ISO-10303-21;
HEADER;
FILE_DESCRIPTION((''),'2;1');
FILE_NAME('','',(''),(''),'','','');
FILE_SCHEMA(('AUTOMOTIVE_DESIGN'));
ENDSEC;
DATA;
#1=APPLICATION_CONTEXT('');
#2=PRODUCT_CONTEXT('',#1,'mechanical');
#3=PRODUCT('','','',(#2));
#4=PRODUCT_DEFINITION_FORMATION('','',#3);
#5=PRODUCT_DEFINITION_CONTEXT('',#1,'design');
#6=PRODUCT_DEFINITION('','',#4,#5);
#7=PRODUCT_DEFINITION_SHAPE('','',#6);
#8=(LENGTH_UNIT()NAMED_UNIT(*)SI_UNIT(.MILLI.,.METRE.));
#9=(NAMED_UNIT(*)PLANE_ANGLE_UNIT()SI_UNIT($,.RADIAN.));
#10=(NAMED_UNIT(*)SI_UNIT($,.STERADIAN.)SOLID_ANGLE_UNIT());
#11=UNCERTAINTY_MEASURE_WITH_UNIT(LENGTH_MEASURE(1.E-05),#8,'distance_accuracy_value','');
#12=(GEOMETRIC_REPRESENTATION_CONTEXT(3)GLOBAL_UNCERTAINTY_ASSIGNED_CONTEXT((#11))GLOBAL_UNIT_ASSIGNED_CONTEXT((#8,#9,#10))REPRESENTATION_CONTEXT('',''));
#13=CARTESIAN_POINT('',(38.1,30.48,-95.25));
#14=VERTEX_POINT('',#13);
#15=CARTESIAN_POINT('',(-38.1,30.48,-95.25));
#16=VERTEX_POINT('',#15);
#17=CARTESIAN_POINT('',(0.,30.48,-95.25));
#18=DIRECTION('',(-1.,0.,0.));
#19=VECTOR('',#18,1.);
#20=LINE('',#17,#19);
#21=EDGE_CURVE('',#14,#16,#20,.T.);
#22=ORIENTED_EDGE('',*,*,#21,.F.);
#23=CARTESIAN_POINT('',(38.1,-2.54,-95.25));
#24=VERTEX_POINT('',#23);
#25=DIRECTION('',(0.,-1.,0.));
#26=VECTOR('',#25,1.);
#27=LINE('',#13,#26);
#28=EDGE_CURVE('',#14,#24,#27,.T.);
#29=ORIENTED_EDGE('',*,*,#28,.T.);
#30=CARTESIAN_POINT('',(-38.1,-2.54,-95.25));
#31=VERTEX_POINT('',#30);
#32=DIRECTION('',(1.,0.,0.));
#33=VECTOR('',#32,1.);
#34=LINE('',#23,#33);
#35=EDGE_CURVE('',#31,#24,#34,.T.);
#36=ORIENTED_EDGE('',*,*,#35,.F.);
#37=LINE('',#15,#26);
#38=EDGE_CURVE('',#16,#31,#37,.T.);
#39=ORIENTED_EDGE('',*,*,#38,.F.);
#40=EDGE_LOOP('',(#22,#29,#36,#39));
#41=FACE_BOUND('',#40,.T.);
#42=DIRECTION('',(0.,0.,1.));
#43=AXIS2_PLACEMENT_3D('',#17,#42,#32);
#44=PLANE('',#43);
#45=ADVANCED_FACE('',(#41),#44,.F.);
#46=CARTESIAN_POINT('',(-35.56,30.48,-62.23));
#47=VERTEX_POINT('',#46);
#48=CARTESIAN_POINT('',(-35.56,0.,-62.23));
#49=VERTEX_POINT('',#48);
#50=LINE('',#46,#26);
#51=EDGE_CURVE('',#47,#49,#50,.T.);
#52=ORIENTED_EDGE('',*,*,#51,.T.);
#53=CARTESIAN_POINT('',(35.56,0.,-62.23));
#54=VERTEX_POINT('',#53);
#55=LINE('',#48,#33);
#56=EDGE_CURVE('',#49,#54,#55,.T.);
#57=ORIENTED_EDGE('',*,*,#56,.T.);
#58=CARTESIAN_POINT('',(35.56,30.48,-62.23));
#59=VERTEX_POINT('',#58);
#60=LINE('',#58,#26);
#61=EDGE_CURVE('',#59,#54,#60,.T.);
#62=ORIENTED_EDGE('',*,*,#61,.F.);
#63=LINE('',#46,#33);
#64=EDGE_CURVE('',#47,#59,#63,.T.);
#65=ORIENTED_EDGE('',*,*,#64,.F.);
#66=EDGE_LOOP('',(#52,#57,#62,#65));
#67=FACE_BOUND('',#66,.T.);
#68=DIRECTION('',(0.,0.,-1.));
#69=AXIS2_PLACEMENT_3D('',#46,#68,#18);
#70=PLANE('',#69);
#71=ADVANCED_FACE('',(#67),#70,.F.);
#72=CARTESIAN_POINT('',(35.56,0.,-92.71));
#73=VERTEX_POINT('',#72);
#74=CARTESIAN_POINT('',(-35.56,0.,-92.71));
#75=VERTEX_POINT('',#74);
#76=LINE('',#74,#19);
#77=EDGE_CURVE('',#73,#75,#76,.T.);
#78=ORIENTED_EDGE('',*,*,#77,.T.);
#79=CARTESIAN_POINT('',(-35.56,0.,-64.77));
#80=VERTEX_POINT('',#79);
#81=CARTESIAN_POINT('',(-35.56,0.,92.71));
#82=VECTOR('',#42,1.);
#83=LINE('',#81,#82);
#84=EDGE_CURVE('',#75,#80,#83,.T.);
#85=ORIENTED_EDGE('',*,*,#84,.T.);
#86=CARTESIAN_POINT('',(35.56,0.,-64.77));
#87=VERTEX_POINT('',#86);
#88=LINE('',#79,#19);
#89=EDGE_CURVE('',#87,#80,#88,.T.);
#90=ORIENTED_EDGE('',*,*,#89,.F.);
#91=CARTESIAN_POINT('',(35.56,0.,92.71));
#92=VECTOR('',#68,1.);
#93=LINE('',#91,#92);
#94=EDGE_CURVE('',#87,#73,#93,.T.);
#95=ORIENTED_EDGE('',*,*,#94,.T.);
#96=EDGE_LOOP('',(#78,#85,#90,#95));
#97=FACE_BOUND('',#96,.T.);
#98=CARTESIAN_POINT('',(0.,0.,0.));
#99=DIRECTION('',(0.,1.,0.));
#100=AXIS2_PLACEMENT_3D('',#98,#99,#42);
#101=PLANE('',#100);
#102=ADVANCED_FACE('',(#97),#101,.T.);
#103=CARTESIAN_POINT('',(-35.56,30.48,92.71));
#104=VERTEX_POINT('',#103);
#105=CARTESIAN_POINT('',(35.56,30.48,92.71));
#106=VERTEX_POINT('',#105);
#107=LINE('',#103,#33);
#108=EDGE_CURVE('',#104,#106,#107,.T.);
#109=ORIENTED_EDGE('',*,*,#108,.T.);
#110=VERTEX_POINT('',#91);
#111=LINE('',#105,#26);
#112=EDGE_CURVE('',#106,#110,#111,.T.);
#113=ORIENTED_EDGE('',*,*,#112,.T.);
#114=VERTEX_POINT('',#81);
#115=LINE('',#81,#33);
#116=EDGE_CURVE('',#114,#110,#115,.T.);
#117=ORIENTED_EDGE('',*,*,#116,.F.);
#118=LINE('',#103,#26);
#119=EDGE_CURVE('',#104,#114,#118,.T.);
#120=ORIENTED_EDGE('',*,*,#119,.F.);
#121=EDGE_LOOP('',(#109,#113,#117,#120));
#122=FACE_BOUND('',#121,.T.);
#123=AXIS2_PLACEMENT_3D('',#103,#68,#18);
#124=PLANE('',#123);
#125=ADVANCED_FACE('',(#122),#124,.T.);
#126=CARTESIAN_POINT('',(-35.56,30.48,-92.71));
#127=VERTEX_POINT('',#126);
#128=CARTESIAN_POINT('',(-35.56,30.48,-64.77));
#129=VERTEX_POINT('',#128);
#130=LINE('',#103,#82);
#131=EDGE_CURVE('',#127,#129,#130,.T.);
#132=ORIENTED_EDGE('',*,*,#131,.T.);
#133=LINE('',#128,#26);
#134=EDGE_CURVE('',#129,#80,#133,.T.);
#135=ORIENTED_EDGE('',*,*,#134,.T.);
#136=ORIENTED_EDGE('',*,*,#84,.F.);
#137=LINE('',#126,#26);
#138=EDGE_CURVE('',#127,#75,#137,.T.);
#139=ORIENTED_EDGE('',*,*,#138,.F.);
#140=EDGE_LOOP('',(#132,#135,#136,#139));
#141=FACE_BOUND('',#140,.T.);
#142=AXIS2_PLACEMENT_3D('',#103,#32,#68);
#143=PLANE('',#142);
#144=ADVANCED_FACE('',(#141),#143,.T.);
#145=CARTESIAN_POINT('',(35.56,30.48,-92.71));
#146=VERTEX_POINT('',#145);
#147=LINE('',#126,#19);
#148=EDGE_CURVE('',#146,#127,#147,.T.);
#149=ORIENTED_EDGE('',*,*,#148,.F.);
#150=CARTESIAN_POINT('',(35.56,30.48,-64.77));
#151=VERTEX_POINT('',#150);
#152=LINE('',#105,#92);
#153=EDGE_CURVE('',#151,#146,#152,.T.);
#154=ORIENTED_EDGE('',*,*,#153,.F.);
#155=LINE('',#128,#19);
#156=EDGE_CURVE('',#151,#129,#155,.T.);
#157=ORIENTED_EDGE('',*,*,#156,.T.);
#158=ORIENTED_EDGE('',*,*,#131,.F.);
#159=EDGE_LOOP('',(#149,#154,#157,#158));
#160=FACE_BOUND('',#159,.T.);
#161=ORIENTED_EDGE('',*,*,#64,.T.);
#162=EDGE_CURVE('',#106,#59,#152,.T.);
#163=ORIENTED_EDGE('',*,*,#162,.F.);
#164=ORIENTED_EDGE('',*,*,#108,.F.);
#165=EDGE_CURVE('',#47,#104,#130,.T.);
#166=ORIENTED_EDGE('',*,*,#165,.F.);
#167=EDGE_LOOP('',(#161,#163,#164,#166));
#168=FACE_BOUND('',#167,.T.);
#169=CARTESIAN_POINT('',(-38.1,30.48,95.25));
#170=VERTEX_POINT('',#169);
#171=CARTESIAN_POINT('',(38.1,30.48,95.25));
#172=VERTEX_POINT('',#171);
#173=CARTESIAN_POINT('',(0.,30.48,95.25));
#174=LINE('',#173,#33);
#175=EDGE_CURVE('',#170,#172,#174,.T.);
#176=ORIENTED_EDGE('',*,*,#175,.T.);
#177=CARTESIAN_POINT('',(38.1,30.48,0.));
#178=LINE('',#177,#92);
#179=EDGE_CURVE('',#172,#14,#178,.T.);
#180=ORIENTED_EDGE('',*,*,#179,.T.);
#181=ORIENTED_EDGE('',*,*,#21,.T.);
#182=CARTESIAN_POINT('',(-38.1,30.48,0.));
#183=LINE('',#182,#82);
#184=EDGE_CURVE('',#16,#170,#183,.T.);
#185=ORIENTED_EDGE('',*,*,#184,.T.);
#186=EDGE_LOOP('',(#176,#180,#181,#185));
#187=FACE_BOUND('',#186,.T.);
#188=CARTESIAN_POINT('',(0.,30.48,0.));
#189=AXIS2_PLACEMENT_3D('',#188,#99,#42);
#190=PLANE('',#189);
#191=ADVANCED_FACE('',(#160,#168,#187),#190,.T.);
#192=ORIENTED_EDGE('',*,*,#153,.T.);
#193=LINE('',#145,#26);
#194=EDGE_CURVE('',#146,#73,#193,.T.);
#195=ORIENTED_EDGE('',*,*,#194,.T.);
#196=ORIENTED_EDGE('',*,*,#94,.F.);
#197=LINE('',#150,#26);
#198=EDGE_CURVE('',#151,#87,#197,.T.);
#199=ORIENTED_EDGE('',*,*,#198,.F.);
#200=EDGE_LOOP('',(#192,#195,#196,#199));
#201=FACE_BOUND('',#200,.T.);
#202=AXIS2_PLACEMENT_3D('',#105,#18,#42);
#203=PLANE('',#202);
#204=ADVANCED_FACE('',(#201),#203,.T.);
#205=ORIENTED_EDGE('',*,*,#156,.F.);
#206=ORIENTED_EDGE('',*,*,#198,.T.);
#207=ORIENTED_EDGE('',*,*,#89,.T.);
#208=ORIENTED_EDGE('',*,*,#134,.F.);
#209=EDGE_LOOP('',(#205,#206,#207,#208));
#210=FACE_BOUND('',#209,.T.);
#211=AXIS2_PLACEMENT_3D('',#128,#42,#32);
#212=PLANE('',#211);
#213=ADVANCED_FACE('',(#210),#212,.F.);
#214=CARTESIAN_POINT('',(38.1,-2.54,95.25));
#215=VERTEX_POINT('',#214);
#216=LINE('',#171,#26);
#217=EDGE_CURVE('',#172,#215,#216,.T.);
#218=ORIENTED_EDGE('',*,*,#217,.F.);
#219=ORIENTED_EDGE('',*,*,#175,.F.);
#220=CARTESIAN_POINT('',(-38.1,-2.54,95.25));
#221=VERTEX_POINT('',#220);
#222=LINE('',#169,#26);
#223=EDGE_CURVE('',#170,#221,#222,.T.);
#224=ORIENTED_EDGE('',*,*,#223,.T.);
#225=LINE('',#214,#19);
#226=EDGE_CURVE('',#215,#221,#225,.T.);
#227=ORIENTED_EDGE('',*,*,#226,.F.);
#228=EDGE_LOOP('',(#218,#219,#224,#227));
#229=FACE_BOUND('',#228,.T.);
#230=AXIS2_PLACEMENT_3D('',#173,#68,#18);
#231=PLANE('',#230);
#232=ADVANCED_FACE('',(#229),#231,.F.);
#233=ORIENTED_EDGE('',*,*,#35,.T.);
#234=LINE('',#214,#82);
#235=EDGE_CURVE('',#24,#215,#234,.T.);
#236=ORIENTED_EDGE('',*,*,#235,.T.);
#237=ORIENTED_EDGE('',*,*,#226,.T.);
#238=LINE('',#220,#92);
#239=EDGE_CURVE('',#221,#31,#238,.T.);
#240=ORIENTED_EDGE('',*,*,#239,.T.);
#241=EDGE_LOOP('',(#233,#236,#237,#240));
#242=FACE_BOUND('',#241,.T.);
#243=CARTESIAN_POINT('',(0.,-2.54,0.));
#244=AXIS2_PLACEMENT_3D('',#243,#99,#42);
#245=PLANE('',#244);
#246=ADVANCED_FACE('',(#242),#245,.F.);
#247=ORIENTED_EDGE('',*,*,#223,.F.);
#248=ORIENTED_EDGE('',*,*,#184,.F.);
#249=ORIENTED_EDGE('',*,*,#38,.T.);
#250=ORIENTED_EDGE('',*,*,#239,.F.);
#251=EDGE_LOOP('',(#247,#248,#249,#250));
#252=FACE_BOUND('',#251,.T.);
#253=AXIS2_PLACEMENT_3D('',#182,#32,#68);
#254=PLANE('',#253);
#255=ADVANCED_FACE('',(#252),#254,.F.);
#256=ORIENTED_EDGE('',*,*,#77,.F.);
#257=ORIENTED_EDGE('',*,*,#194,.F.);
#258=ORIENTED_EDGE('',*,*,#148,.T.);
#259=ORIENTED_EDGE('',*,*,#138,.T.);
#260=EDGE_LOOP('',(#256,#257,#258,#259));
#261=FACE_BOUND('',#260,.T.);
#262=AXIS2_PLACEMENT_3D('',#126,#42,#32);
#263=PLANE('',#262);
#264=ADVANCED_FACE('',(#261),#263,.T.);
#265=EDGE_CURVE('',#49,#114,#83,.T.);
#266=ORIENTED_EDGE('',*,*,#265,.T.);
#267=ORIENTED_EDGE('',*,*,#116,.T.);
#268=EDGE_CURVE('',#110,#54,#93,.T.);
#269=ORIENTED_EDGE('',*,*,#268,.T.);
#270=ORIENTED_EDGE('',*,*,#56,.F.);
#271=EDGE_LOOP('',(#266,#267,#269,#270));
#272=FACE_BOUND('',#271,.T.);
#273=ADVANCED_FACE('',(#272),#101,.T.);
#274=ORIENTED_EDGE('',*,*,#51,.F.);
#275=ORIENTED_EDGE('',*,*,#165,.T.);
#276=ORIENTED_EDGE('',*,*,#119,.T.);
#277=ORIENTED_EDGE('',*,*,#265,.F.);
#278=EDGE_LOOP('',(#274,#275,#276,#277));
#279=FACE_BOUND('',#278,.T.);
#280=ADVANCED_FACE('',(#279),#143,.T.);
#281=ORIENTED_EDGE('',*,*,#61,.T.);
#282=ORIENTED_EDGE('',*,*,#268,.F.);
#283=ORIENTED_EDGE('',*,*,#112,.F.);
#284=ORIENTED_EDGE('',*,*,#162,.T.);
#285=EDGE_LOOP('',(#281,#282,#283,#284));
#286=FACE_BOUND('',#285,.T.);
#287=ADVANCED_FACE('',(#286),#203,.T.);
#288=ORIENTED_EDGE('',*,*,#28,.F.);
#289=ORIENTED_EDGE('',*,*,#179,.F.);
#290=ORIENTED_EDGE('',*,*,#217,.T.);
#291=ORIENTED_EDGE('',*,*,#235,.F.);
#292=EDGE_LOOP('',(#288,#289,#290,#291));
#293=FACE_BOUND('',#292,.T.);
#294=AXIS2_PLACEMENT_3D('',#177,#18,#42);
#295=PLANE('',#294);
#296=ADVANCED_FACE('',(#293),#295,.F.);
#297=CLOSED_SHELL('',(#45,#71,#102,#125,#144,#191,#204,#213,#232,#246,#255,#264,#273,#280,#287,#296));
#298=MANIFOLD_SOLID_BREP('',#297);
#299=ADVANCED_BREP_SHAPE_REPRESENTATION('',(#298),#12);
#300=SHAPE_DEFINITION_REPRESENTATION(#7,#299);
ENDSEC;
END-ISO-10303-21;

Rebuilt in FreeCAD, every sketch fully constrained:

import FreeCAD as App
import Part
import Sketcher
Q = App.Units.Quantity


def add_polygon(sketch, points):
    """Adds a closed chain of lines whose ends are joined by coincident constraints."""
    first, n = sketch.GeometryCount, len(points)
    for a, b in zip(points, points[1:] + points[:1]):
        sketch.addGeometry(Part.LineSegment(App.Vector(*a, 0), App.Vector(*b, 0)), False)
    for i in range(n):
        sketch.addConstraint(Sketcher.Constraint("Coincident", first + i, 2, first + (i + 1) % n, 1))

doc = App.newDocument("Part")
params = doc.addObject("Spreadsheet::Sheet", "Params")
for row, (alias, value) in enumerate([
    ("sketch1_width", "3 in"),
    ("sketch1_width2", "2.8 in"),
    ("sketch1_height", "7.5 in"),
    ("sketch1_height2", "7.3 in"),
    ("pad1_length", "1.2 in"),
    ("sketch2_width", "3 in"),
    ("sketch2_height", "7.5 in"),
    ("pad2_length", "0.1 in"),
    ("sketch3_width", "2.8 in"),
    ("sketch3_height", "0.1 in"),
    ("pad3_length", "1.2 in"),
], start=1):
    params.set(f"A{row}", alias)
    params.set(f"B{row}", "=" + value)
    params.setAlias(f"B{row}", alias)

body = doc.addObject("PartDesign::Body", "Body")

sketch1 = body.newObject("Sketcher::SketchObject", "Sketch")
sketch1.AttachmentSupport = (doc.getObject("XZ_Plane"), [""])
sketch1.MapMode = "FlatFace"
add_polygon(sketch1, [(-38.1, -95.25), (-38.1, 95.25), (38.1, 95.25), (38.1, -95.25)])
add_polygon(sketch1, [(35.56, 92.71), (-35.56, 92.71), (-35.56, -92.71), (35.56, -92.71)])
sketch1.addConstraint([
    Sketcher.Constraint("Vertical", 0),
    Sketcher.Constraint("Horizontal", 1),
    Sketcher.Constraint("Vertical", 2),
    Sketcher.Constraint("Horizontal", 3),
    Sketcher.Constraint("Horizontal", 4),
    Sketcher.Constraint("Vertical", 5),
    Sketcher.Constraint("Horizontal", 6),
    Sketcher.Constraint("Vertical", 7),
    Sketcher.Constraint("Symmetric", 0, 2, 2, 2, -1, 1),
    Sketcher.Constraint("Symmetric", 4, 2, 6, 2, -1, 1),
    Sketcher.Constraint("DistanceX", 1, 1, 1, 2, Q("3 in")),
    Sketcher.Constraint("DistanceX", 4, 2, 4, 1, Q("2.8 in")),
    Sketcher.Constraint("DistanceY", 0, 1, 0, 2, Q("7.5 in")),
    Sketcher.Constraint("DistanceY", 5, 2, 5, 1, Q("7.3 in")),
])
sketch1.setExpression("Constraints[18]", "Params.sketch1_width")
sketch1.setExpression("Constraints[19]", "Params.sketch1_width2")
sketch1.setExpression("Constraints[20]", "Params.sketch1_height")
sketch1.setExpression("Constraints[21]", "Params.sketch1_height2")
pad1 = body.newObject("PartDesign::Pad", "Pad")
pad1.Profile = sketch1
pad1.setExpression("Length", "Params.pad1_length")
pad1.Reversed = True

sketch2 = body.newObject("Sketcher::SketchObject", "Sketch001")
sketch2.AttachmentSupport = (doc.getObject("XZ_Plane"), [""])
sketch2.MapMode = "FlatFace"
add_polygon(sketch2, [(-38.1, 95.25), (-38.1, -95.25), (38.1, -95.25), (38.1, 95.25)])
sketch2.addConstraint([
    Sketcher.Constraint("Vertical", 0),
    Sketcher.Constraint("Horizontal", 1),
    Sketcher.Constraint("Vertical", 2),
    Sketcher.Constraint("Horizontal", 3),
    Sketcher.Constraint("Symmetric", 0, 2, 2, 2, -1, 1),
    Sketcher.Constraint("DistanceX", 1, 1, 1, 2, Q("3 in")),
    Sketcher.Constraint("DistanceY", 0, 2, 0, 1, Q("7.5 in")),
])
sketch2.setExpression("Constraints[9]", "Params.sketch2_width")
sketch2.setExpression("Constraints[10]", "Params.sketch2_height")
pad2 = body.newObject("PartDesign::Pad", "Pad001")
pad2.Profile = sketch2
pad2.setExpression("Length", "Params.pad2_length")

sketch3 = body.newObject("Sketcher::SketchObject", "Sketch002")
sketch3.AttachmentSupport = (doc.getObject("XZ_Plane"), [""])
sketch3.MapMode = "FlatFace"
add_polygon(sketch3, [(-35.56, -64.77), (-35.56, -62.23), (35.56, -62.23), (35.56, -64.77)])
sketch3.addConstraint([
    Sketcher.Constraint("Vertical", 0),
    Sketcher.Constraint("Horizontal", 1),
    Sketcher.Constraint("Vertical", 2),
    Sketcher.Constraint("Horizontal", 3),
    Sketcher.Constraint("DistanceX", 1, 1, 1, 2, Q("2.8 in")),
    Sketcher.Constraint("DistanceY", 0, 1, 0, 2, Q("0.1 in")),
    Sketcher.Constraint("DistanceX", 0, 2, -1, 1, Q("1.4 in")),
    Sketcher.Constraint("DistanceY", 0, 2, -1, 1, Q("2.45 in")),
])
sketch3.setExpression("Constraints[8]", "Params.sketch3_width")
sketch3.setExpression("Constraints[9]", "Params.sketch3_height")
pad3 = body.newObject("PartDesign::Pad", "Pad002")
pad3.Profile = sketch3
pad3.setExpression("Length", "Params.pad3_length")
pad3.Reversed = True

doc.recompute()
